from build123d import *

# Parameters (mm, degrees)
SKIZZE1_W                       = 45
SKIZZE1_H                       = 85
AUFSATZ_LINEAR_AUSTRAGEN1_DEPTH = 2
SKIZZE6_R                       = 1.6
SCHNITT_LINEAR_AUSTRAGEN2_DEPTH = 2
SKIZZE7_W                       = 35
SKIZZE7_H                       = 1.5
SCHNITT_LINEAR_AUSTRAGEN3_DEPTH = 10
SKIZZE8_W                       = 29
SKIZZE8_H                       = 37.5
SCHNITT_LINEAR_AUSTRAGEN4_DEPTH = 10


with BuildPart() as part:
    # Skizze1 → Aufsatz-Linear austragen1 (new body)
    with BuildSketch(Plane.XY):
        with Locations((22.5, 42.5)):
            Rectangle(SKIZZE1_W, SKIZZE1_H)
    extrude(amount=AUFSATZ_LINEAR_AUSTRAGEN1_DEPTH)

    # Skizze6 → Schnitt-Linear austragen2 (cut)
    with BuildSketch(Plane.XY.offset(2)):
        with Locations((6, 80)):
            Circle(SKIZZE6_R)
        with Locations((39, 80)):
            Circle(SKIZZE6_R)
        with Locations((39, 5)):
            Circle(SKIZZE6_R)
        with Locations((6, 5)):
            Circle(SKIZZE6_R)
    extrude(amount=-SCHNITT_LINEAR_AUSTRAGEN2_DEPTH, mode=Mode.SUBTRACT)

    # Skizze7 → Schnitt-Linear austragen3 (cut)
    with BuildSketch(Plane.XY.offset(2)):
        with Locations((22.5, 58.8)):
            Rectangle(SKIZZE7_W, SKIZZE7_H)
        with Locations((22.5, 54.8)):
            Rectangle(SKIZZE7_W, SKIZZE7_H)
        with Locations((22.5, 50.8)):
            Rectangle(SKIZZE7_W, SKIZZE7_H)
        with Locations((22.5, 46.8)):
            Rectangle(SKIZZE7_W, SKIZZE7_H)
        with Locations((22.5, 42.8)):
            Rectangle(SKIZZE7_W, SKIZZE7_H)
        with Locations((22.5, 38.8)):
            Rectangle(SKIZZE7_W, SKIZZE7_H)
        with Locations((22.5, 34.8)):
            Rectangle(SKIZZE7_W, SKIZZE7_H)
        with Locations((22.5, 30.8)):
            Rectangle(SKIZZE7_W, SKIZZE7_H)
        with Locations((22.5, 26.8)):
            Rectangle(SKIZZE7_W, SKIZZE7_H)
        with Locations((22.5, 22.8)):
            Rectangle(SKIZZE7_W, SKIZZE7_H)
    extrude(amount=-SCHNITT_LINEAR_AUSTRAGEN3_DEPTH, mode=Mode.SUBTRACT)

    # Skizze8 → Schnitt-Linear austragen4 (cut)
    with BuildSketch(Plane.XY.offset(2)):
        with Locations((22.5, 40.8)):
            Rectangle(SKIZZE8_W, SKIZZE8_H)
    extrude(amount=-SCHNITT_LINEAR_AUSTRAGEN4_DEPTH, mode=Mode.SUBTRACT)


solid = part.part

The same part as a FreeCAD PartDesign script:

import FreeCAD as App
import Part
import Sketcher

V = App.Vector

doc = App.newDocument("Part")
body = doc.addObject("PartDesign::Body", "Body")

# Sketch on XY plane
sketch1 = body.newObject("Sketcher::SketchObject", "Sketch")
sketch1.AttachmentSupport = (doc.getObject("XY_Plane"), [""])
sketch1.MapMode = "FlatFace"
sketch1.addGeometry([
    Part.LineSegment(V(0, 85, 0), V(0, 0, 0)),
    Part.LineSegment(V(0, 0, 0), V(45, 0, 0)),
    Part.LineSegment(V(45, 0, 0), V(45, 85, 0)),
    Part.LineSegment(V(45, 85, 0), V(0, 85, 0)),
], False)
sketch1.addConstraint([
    Sketcher.Constraint("Coincident", 0, 2, 1, 1),
    Sketcher.Constraint("Coincident", 1, 2, 2, 1),
    Sketcher.Constraint("Coincident", 2, 2, 3, 1),
    Sketcher.Constraint("Coincident", 3, 2, 0, 1),
    Sketcher.Constraint("Vertical", 0),
    Sketcher.Constraint("Horizontal", 1),
    Sketcher.Constraint("Vertical", 2),
    Sketcher.Constraint("Horizontal", 3),
    Sketcher.Constraint("Coincident", 0, 2, -1, 1),
    Sketcher.Constraint("DistanceX", 1, 1, 1, 2, 45.0),
    Sketcher.Constraint("DistanceY", 0, 2, 0, 1, 85.0),
])
pad1 = body.newObject("PartDesign::Pad", "Pad")
pad1.Profile = sketch1
pad1.Length = 2

# Sketch on XY plane
sketch2 = body.newObject("Sketcher::SketchObject", "Sketch001")
sketch2.AttachmentSupport = (doc.getObject("XY_Plane"), [""])
sketch2.MapMode = "FlatFace"
sketch2.AttachmentOffset = App.Placement(V(0, 0, 2), App.Rotation())
sketch2.addGeometry([
    Part.Circle(V(6, 80, 0), V(0, 0, 1), 1.6),
    Part.Circle(V(39, 80, 0), V(0, 0, 1), 1.6),
    Part.Circle(V(39, 5, 0), V(0, 0, 1), 1.6),
    Part.Circle(V(6, 5, 0), V(0, 0, 1), 1.6),
], False)
sketch2.addConstraint([
    Sketcher.Constraint("Equal", 0, 1),
    Sketcher.Constraint("Equal", 1, 2),
    Sketcher.Constraint("Equal", 2, 3),
    Sketcher.Constraint("Horizontal", 0, 3, 1, 3),
    Sketcher.Constraint("Horizontal", 2, 3, 3, 3),
    Sketcher.Constraint("Vertical", 1, 3, 2, 3),
    Sketcher.Constraint("Vertical", 0, 3, 3, 3),
    Sketcher.Constraint("Diameter", 0, 3.2),
    Sketcher.Constraint("DistanceX", -1, 1, 0, 3, 6.0),
    Sketcher.Constraint("DistanceY", -1, 1, 0, 3, 80.0),
    Sketcher.Constraint("DistanceX", -1, 1, 1, 3, 39.0),
    Sketcher.Constraint("DistanceY", -1, 1, 2, 3, 5.0),
])
pocket1 = body.newObject("PartDesign::Pocket", "Pocket")
pocket1.Profile = sketch2
pocket1.Length = 2

# Sketch on XY plane
sketch3 = body.newObject("Sketcher::SketchObject", "Sketch002")
sketch3.AttachmentSupport = (doc.getObject("XY_Plane"), [""])
sketch3.MapMode = "FlatFace"
sketch3.AttachmentOffset = App.Placement(V(0, 0, 2), App.Rotation())
sketch3.addGeometry([
    Part.LineSegment(V(5, 59.5, 0), V(5, 58, 0)),  # 0
    Part.LineSegment(V(5, 58, 0), V(40, 58, 0)),  # 1
    Part.LineSegment(V(40, 58, 0), V(40, 59.5, 0)),  # 2
    Part.LineSegment(V(40, 59.5, 0), V(5, 59.5, 0)),  # 3
    Part.LineSegment(V(5, 55.5, 0), V(5, 54, 0)),  # 4
    Part.LineSegment(V(5, 54, 0), V(40, 54, 0)),  # 5
    Part.LineSegment(V(40, 54, 0), V(40, 55.5, 0)),  # 6
    Part.LineSegment(V(40, 55.5, 0), V(5, 55.5, 0)),  # 7
    Part.LineSegment(V(5, 51.5, 0), V(5, 50, 0)),  # 8
    Part.LineSegment(V(5, 50, 0), V(40, 50, 0)),  # 9
    Part.LineSegment(V(40, 50, 0), V(40, 51.5, 0)),  # 10
    Part.LineSegment(V(40, 51.5, 0), V(5, 51.5, 0)),  # 11
    Part.LineSegment(V(5, 47.5, 0), V(5, 46, 0)),  # 12
    Part.LineSegment(V(5, 46, 0), V(40, 46, 0)),  # 13
    Part.LineSegment(V(40, 46, 0), V(40, 47.5, 0)),  # 14
    Part.LineSegment(V(40, 47.5, 0), V(5, 47.5, 0)),  # 15
    Part.LineSegment(V(5, 43.5, 0), V(5, 42, 0)),  # 16
    Part.LineSegment(V(5, 42, 0), V(40, 42, 0)),  # 17
    Part.LineSegment(V(40, 42, 0), V(40, 43.5, 0)),  # 18
    Part.LineSegment(V(40, 43.5, 0), V(5, 43.5, 0)),  # 19
    Part.LineSegment(V(5, 39.5, 0), V(5, 38, 0)),  # 20
    Part.LineSegment(V(5, 38, 0), V(40, 38, 0)),  # 21
    Part.LineSegment(V(40, 38, 0), V(40, 39.5, 0)),  # 22
    Part.LineSegment(V(40, 39.5, 0), V(5, 39.5, 0)),  # 23
    Part.LineSegment(V(5, 35.5, 0), V(5, 34, 0)),  # 24
    Part.LineSegment(V(5, 34, 0), V(40, 34, 0)),  # 25
    Part.LineSegment(V(40, 34, 0), V(40, 35.5, 0)),  # 26
    Part.LineSegment(V(40, 35.5, 0), V(5, 35.5, 0)),  # 27
    Part.LineSegment(V(5, 31.6, 0), V(5, 30.1, 0)),  # 28
    Part.LineSegment(V(5, 30.1, 0), V(40, 30.1, 0)),  # 29
    Part.LineSegment(V(40, 30.1, 0), V(40, 31.6, 0)),  # 30
    Part.LineSegment(V(40, 31.6, 0), V(5, 31.6, 0)),  # 31
    Part.LineSegment(V(5, 27.6, 0), V(5, 26.1, 0)),  # 32
    Part.LineSegment(V(5, 26.1, 0), V(40, 26.1, 0)),  # 33
    Part.LineSegment(V(40, 26.1, 0), V(40, 27.6, 0)),  # 34
    Part.LineSegment(V(40, 27.6, 0), V(5, 27.6, 0)),  # 35
    Part.LineSegment(V(5, 23.6, 0), V(5, 22.1, 0)),  # 36
    Part.LineSegment(V(5, 22.1, 0), V(40, 22.1, 0)),  # 37
    Part.LineSegment(V(40, 22.1, 0), V(40, 23.6, 0)),  # 38
    Part.LineSegment(V(40, 23.6, 0), V(5, 23.6, 0)),  # 39
], False)
sketch3.addConstraint([
    Sketcher.Constraint("Coincident", 0, 2, 1, 1),
    Sketcher.Constraint("Coincident", 1, 2, 2, 1),
    Sketcher.Constraint("Coincident", 2, 2, 3, 1),
    Sketcher.Constraint("Coincident", 3, 2, 0, 1),
    Sketcher.Constraint("Coincident", 4, 2, 5, 1),
    Sketcher.Constraint("Coincident", 5, 2, 6, 1),
    Sketcher.Constraint("Coincident", 6, 2, 7, 1),
    Sketcher.Constraint("Coincident", 7, 2, 4, 1),
    Sketcher.Constraint("Coincident", 8, 2, 9, 1),
    Sketcher.Constraint("Coincident", 9, 2, 10, 1),
    Sketcher.Constraint("Coincident", 10, 2, 11, 1),
    Sketcher.Constraint("Coincident", 11, 2, 8, 1),
    Sketcher.Constraint("Coincident", 12, 2, 13, 1),
    Sketcher.Constraint("Coincident", 13, 2, 14, 1),
    Sketcher.Constraint("Coincident", 14, 2, 15, 1),
    Sketcher.Constraint("Coincident", 15, 2, 12, 1),
    Sketcher.Constraint("Coincident", 16, 2, 17, 1),
    Sketcher.Constraint("Coincident", 17, 2, 18, 1),
    Sketcher.Constraint("Coincident", 18, 2, 19, 1),
    Sketcher.Constraint("Coincident", 19, 2, 16, 1),
    Sketcher.Constraint("Coincident", 20, 2, 21, 1),
    Sketcher.Constraint("Coincident", 21, 2, 22, 1),
    Sketcher.Constraint("Coincident", 22, 2, 23, 1),
    Sketcher.Constraint("Coincident", 23, 2, 20, 1),
    Sketcher.Constraint("Coincident", 24, 2, 25, 1),
    Sketcher.Constraint("Coincident", 25, 2, 26, 1),
    Sketcher.Constraint("Coincident", 26, 2, 27, 1),
    Sketcher.Constraint("Coincident", 27, 2, 24, 1),
    Sketcher.Constraint("Coincident", 28, 2, 29, 1),
    Sketcher.Constraint("Coincident", 29, 2, 30, 1),
    Sketcher.Constraint("Coincident", 30, 2, 31, 1),
    Sketcher.Constraint("Coincident", 31, 2, 28, 1),
    Sketcher.Constraint("Coincident", 32, 2, 33, 1),
    Sketcher.Constraint("Coincident", 33, 2, 34, 1),
    Sketcher.Constraint("Coincident", 34, 2, 35, 1),
    Sketcher.Constraint("Coincident", 35, 2, 32, 1),
    Sketcher.Constraint("Coincident", 36, 2, 37, 1),
    Sketcher.Constraint("Coincident", 37, 2, 38, 1),
    Sketcher.Constraint("Coincident", 38, 2, 39, 1),
    Sketcher.Constraint("Coincident", 39, 2, 36, 1),
    Sketcher.Constraint("Vertical", 0),
    Sketcher.Constraint("Horizontal", 1),
    Sketcher.Constraint("Vertical", 2),
    Sketcher.Constraint("Horizontal", 3),
    Sketcher.Constraint("Vertical", 4),
    Sketcher.Constraint("Horizontal", 5),
    Sketcher.Constraint("Vertical", 6),
    Sketcher.Constraint("Horizontal", 7),
    Sketcher.Constraint("Vertical", 8),
    Sketcher.Constraint("Horizontal", 9),
    Sketcher.Constraint("Vertical", 10),
    Sketcher.Constraint("Horizontal", 11),
    Sketcher.Constraint("Vertical", 12),
    Sketcher.Constraint("Horizontal", 13),
    Sketcher.Constraint("Vertical", 14),
    Sketcher.Constraint("Horizontal", 15),
    Sketcher.Constraint("Vertical", 16),
    Sketcher.Constraint("Horizontal", 17),
    Sketcher.Constraint("Vertical", 18),
    Sketcher.Constraint("Horizontal", 19),
    Sketcher.Constraint("Vertical", 20),
    Sketcher.Constraint("Horizontal", 21),
    Sketcher.Constraint("Vertical", 22),
    Sketcher.Constraint("Horizontal", 23),
    Sketcher.Constraint("Vertical", 24),
    Sketcher.Constraint("Horizontal", 25),
    Sketcher.Constraint("Vertical", 26),
    Sketcher.Constraint("Horizontal", 27),
    Sketcher.Constraint("Vertical", 28),
    Sketcher.Constraint("Horizontal", 29),
    Sketcher.Constraint("Vertical", 30),
    Sketcher.Constraint("Horizontal", 31),
    Sketcher.Constraint("Vertical", 32),
    Sketcher.Constraint("Horizontal", 33),
    Sketcher.Constraint("Vertical", 34),
    Sketcher.Constraint("Horizontal", 35),
    Sketcher.Constraint("Vertical", 36),
    Sketcher.Constraint("Horizontal", 37),
    Sketcher.Constraint("Vertical", 38),
    Sketcher.Constraint("Horizontal", 39),
    Sketcher.Constraint("Vertical", 3, 2, 4, 2),
    Sketcher.Constraint("Vertical", 2, 2, 5, 2),
    Sketcher.Constraint("Vertical", 7, 2, 8, 2),
    Sketcher.Constraint("Vertical", 6, 2, 9, 2),
    Sketcher.Constraint("Vertical", 11, 2, 12, 2),
    Sketcher.Constraint("Vertical", 10, 2, 13, 2),
    Sketcher.Constraint("Vertical", 15, 2, 16, 2),
    Sketcher.Constraint("Vertical", 14, 2, 17, 2),
    Sketcher.Constraint("Vertical", 19, 2, 20, 2),
    Sketcher.Constraint("Vertical", 18, 2, 21, 2),
    Sketcher.Constraint("Vertical", 23, 2, 24, 2),
    Sketcher.Constraint("Vertical", 22, 2, 25, 2),
    Sketcher.Constraint("Vertical", 27, 2, 28, 2),
    Sketcher.Constraint("Vertical", 26, 2, 29, 2),
    Sketcher.Constraint("Vertical", 31, 2, 32, 2),
    Sketcher.Constraint("Vertical", 30, 2, 33, 2),
    Sketcher.Constraint("Vertical", 35, 2, 36, 2),
    Sketcher.Constraint("Vertical", 34, 2, 37, 2),
    Sketcher.Constraint("Equal", 2, 4),
    Sketcher.Constraint("Equal", 6, 8),
    Sketcher.Constraint("Equal", 10, 12),
    Sketcher.Constraint("Equal", 14, 16),
    Sketcher.Constraint("Equal", 18, 20),
    Sketcher.Constraint("Equal", 22, 24),
    Sketcher.Constraint("Equal", 26, 28),
    Sketcher.Constraint("Equal", 30, 32),
    Sketcher.Constraint("Equal", 34, 36),
    Sketcher.Constraint("DistanceX", 1, 1, 1, 2, 35.0),
    Sketcher.Constraint("DistanceY", 0, 2, 0, 1, 1.5),
    Sketcher.Constraint("DistanceX", -1, 1, 0, 2, 5.0),
    Sketcher.Constraint("DistanceY", 4, 2, 0, 2, 4.0),
    Sketcher.Constraint("DistanceY", 8, 2, 4, 2, 4.0),
    Sketcher.Constraint("DistanceY", 12, 2, 8, 2, 4.0),
    Sketcher.Constraint("DistanceY", 16, 2, 12, 2, 4.0),
    Sketcher.Constraint("DistanceY", 20, 2, 16, 2, 4.0),
    Sketcher.Constraint("DistanceY", 24, 2, 20, 2, 4.0),
    Sketcher.Constraint("DistanceY", 28, 2, 24, 2, 4.0),
    Sketcher.Constraint("DistanceY", 32, 2, 28, 2, 4.0),
    Sketcher.Constraint("DistanceY", 36, 2, 32, 2, 4.0),
    Sketcher.Constraint("DistanceY", -1, 1, 0, 2, 58.05),
])
pocket2 = body.newObject("PartDesign::Pocket", "Pocket001")
pocket2.Profile = sketch3
pocket2.Length = 10

# Sketch on XY plane
sketch4 = body.newObject("Sketcher::SketchObject", "Sketch003")
sketch4.AttachmentSupport = (doc.getObject("XY_Plane"), [""])
sketch4.MapMode = "FlatFace"
sketch4.AttachmentOffset = App.Placement(V(0, 0, 2), App.Rotation())
sketch4.addGeometry([
    Part.LineSegment(V(8, 60, 0), V(8, 22, 0)),
    Part.LineSegment(V(8, 22, 0), V(37, 22, 0)),
    Part.LineSegment(V(37, 22, 0), V(37, 60, 0)),
    Part.LineSegment(V(37, 60, 0), V(8, 60, 0)),
], False)
sketch4.addConstraint([
    Sketcher.Constraint("Coincident", 0, 2, 1, 1),
    Sketcher.Constraint("Coincident", 1, 2, 2, 1),
    Sketcher.Constraint("Coincident", 2, 2, 3, 1),
    Sketcher.Constraint("Coincident", 3, 2, 0, 1),
    Sketcher.Constraint("Vertical", 0),
    Sketcher.Constraint("Horizontal", 1),
    Sketcher.Constraint("Vertical", 2),
    Sketcher.Constraint("Horizontal", 3),
    Sketcher.Constraint("DistanceX", 1, 1, 1, 2, 29.0),
    Sketcher.Constraint("DistanceY", 0, 2, 0, 1, 37.5),
    Sketcher.Constraint("DistanceX", -1, 1, 0, 2, 8.0),
    Sketcher.Constraint("DistanceY", -1, 1, 0, 2, 22.05),
])
pocket3 = body.newObject("PartDesign::Pocket", "Pocket002")
pocket3.Profile = sketch4
pocket3.Length = 10

doc.recompute()
